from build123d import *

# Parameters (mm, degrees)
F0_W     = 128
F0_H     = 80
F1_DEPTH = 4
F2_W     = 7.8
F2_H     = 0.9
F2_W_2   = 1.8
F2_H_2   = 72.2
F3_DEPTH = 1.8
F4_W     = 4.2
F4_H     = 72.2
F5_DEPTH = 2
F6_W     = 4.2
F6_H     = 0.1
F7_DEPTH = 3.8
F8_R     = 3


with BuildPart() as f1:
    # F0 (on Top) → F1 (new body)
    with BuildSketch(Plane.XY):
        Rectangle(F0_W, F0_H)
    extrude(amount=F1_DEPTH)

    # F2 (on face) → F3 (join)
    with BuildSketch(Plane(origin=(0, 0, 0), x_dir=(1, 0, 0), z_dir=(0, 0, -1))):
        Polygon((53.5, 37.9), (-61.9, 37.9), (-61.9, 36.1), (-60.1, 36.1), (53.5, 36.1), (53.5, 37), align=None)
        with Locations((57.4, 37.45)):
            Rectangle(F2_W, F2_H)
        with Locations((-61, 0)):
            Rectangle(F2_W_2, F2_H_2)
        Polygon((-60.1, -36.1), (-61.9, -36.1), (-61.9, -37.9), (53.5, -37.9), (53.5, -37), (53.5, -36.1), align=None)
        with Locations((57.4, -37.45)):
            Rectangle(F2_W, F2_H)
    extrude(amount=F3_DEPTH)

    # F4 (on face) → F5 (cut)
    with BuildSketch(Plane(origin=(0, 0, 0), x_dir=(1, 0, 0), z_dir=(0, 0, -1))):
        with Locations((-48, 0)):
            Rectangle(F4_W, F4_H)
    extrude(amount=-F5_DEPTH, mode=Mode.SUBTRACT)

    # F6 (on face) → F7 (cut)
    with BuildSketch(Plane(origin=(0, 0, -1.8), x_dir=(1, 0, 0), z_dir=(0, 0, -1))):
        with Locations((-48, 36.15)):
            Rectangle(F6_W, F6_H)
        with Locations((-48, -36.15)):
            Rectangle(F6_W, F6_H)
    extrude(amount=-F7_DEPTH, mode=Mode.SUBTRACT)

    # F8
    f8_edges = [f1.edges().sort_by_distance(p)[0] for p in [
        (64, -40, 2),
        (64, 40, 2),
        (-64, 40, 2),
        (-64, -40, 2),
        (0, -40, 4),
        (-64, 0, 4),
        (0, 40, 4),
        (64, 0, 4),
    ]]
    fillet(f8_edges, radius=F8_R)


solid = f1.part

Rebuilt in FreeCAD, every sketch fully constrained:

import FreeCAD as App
import Part
import Sketcher

V = App.Vector
Q = App.Units.Quantity


def edges_at(feature, points):
    """Names of the edges that pass closest to the given points."""
    edges = feature.Shape.Edges
    near = lambda p: min(range(len(edges)), key=lambda i: edges[i].distToShape(Part.Vertex(*p))[0])
    return sorted({f"Edge{near(p) + 1}" for p in points})


def add_polygon(sketch, points):
    """Adds a closed chain of lines whose ends are joined by coincident constraints."""
    first, n = sketch.GeometryCount, len(points)
    for a, b in zip(points, points[1:] + points[:1]):
        sketch.addGeometry(Part.LineSegment(App.Vector(*a, 0), App.Vector(*b, 0)), False)
    for i in range(n):
        sketch.addConstraint(Sketcher.Constraint("Coincident", first + i, 2, first + (i + 1) % n, 1))

doc = App.newDocument("Part")
body = doc.addObject("PartDesign::Body", "Body")

sketch1 = body.newObject("Sketcher::SketchObject", "Sketch")
sketch1.AttachmentSupport = (doc.getObject("XY_Plane"), [""])
sketch1.MapMode = "FlatFace"
add_polygon(sketch1, [(-64, 40), (-64, -40), (64, -40), (64, 40)])
sketch1.addConstraint(Sketcher.Constraint("Vertical", 0))
sketch1.addConstraint(Sketcher.Constraint("Horizontal", 1))
sketch1.addConstraint(Sketcher.Constraint("Vertical", 2))
sketch1.addConstraint(Sketcher.Constraint("Horizontal", 3))
sketch1.addConstraint(Sketcher.Constraint("Symmetric", 0, 2, 2, 2, -1, 1))
sketch1.addConstraint(Sketcher.Constraint("DistanceX", 1, 1, 1, 2, Q("128 mm")))
sketch1.addConstraint(Sketcher.Constraint("DistanceY", 0, 2, 0, 1, Q("80 mm")))
pad1 = body.newObject("PartDesign::Pad", "Pad")
pad1.Profile = sketch1
pad1.Length = 4

sketch2 = body.newObject("Sketcher::SketchObject", "Sketch001")
sketch2.AttachmentSupport = (doc.getObject("XY_Plane"), [""])
sketch2.MapMode = "FlatFace"
add_polygon(sketch2, [(-61.9, -37.9), (-61.9, 37.9), (61.3, 37.9), (61.3, 37), (53.5, 37), (53.5, 36.1), (-60.1, 36.1), (-60.1, -36.1), (53.5, -36.1), (53.5, -37), (61.3, -37), (61.3, -37.9)])
sketch2.addConstraint(Sketcher.Constraint("Vertical", 0))
sketch2.addConstraint(Sketcher.Constraint("Horizontal", 1))
sketch2.addConstraint(Sketcher.Constraint("Vertical", 2))
sketch2.addConstraint(Sketcher.Constraint("Horizontal", 3))
sketch2.addConstraint(Sketcher.Constraint("Vertical", 4))
sketch2.addConstraint(Sketcher.Constraint("Horizontal", 5))
sketch2.addConstraint(Sketcher.Constraint("Vertical", 6))
sketch2.addConstraint(Sketcher.Constraint("Horizontal", 7))
sketch2.addConstraint(Sketcher.Constraint("Vertical", 8))
sketch2.addConstraint(Sketcher.Constraint("Horizontal", 9))
sketch2.addConstraint(Sketcher.Constraint("Vertical", 10))
sketch2.addConstraint(Sketcher.Constraint("Horizontal", 11))
sketch2.addConstraint(Sketcher.Constraint("Symmetric", 4, 2, 7, 2, -1))
sketch2.addConstraint(Sketcher.Constraint("Symmetric", 2, 2, 9, 2, -1))
sketch2.addConstraint(Sketcher.Constraint("Equal", 2, 4))
sketch2.addConstraint(Sketcher.Constraint("Equal", 8, 10))
sketch2.addConstraint(Sketcher.Constraint("DistanceX", 1, 1, 1, 2, Q("123.2 mm")))
sketch2.addConstraint(Sketcher.Constraint("DistanceX", 3, 2, 3, 1, Q("7.8 mm")))
sketch2.addConstraint(Sketcher.Constraint("DistanceX", 5, 2, 5, 1, Q("113.6 mm")))
sketch2.addConstraint(Sketcher.Constraint("DistanceY", 0, 1, 0, 2, Q("75.8 mm")))
sketch2.addConstraint(Sketcher.Constraint("DistanceY", 2, 2, 2, 1, Q("0.9 mm")))
sketch2.addConstraint(Sketcher.Constraint("DistanceX", 0, 2, -1, 1, Q("61.9 mm")))
pad2 = body.newObject("PartDesign::Pad", "Pad001")
pad2.Profile = sketch2
pad2.Length = 1.8
pad2.Reversed = True

sketch3 = body.newObject("Sketcher::SketchObject", "Sketch002")
sketch3.AttachmentSupport = (doc.getObject("XY_Plane"), [""])
sketch3.MapMode = "FlatFace"
add_polygon(sketch3, [(-50.1, -36.1), (-50.1, 36.1), (-45.9, 36.1), (-45.9, -36.1)])
sketch3.addConstraint(Sketcher.Constraint("Vertical", 0))
sketch3.addConstraint(Sketcher.Constraint("Horizontal", 1))
sketch3.addConstraint(Sketcher.Constraint("Vertical", 2))
sketch3.addConstraint(Sketcher.Constraint("Horizontal", 3))
sketch3.addConstraint(Sketcher.Constraint("DistanceX", 1, 1, 1, 2, Q("4.2 mm")))
sketch3.addConstraint(Sketcher.Constraint("DistanceY", 0, 1, 0, 2, Q("72.2 mm")))
sketch3.addConstraint(Sketcher.Constraint("DistanceX", 0, 2, -1, 1, Q("50.1 mm")))
sketch3.addConstraint(Sketcher.Constraint("DistanceY", -1, 1, 0, 2, Q("36.1 mm")))
pocket1 = body.newObject("PartDesign::Pocket", "Pocket")
pocket1.Profile = sketch3
pocket1.Length = 2
pocket1.Reversed = True

sketch4 = body.newObject("Sketcher::SketchObject", "Sketch003")
sketch4.AttachmentSupport = (doc.getObject("XY_Plane"), [""])
sketch4.MapMode = "FlatFace"
sketch4.AttachmentOffset = App.Placement(V(0, 0, -1.8), App.Rotation())
add_polygon(sketch4, [(-50.1, -36.2), (-50.1, -36.1), (-45.9, -36.1), (-45.9, -36.2)])
add_polygon(sketch4, [(-50.1, 36.1), (-50.1, 36.2), (-45.9, 36.2), (-45.9, 36.1)])
sketch4.addConstraint(Sketcher.Constraint("Vertical", 0))
sketch4.addConstraint(Sketcher.Constraint("Horizontal", 1))
sketch4.addConstraint(Sketcher.Constraint("Vertical", 2))
sketch4.addConstraint(Sketcher.Constraint("Horizontal", 3))
sketch4.addConstraint(Sketcher.Constraint("Vertical", 4))
sketch4.addConstraint(Sketcher.Constraint("Horizontal", 5))
sketch4.addConstraint(Sketcher.Constraint("Vertical", 6))
sketch4.addConstraint(Sketcher.Constraint("Horizontal", 7))
sketch4.addConstraint(Sketcher.Constraint("Symmetric", 3, 2, 4, 2, -1))
sketch4.addConstraint(Sketcher.Constraint("Symmetric", 1, 2, 6, 2, -1))
sketch4.addConstraint(Sketcher.Constraint("DistanceX", 1, 1, 1, 2, Q("4.2 mm")))
sketch4.addConstraint(Sketcher.Constraint("DistanceY", 0, 1, 0, 2, Q("0.1 mm")))
sketch4.addConstraint(Sketcher.Constraint("DistanceX", 0, 2, -1, 1, Q("50.1 mm")))
sketch4.addConstraint(Sketcher.Constraint("DistanceY", 0, 2, -1, 1, Q("36.1 mm")))
pocket2 = body.newObject("PartDesign::Pocket", "Pocket001")
pocket2.Profile = sketch4
pocket2.Length = 3.8
pocket2.Reversed = True
doc.recompute()

fillet = body.newObject("PartDesign::Fillet", "Fillet")
fillet.Base = (pocket2, edges_at(pocket2, [
    (64, -40, 2),
    (64, 40, 2),
    (-64, 40, 2),
    (-64, -40, 2),
    (0, -40, 4),
    (-64, 0, 4),
    (0, 40, 4),
    (64, 0, 4),
]))
fillet.Radius = 3

doc.recompute()
